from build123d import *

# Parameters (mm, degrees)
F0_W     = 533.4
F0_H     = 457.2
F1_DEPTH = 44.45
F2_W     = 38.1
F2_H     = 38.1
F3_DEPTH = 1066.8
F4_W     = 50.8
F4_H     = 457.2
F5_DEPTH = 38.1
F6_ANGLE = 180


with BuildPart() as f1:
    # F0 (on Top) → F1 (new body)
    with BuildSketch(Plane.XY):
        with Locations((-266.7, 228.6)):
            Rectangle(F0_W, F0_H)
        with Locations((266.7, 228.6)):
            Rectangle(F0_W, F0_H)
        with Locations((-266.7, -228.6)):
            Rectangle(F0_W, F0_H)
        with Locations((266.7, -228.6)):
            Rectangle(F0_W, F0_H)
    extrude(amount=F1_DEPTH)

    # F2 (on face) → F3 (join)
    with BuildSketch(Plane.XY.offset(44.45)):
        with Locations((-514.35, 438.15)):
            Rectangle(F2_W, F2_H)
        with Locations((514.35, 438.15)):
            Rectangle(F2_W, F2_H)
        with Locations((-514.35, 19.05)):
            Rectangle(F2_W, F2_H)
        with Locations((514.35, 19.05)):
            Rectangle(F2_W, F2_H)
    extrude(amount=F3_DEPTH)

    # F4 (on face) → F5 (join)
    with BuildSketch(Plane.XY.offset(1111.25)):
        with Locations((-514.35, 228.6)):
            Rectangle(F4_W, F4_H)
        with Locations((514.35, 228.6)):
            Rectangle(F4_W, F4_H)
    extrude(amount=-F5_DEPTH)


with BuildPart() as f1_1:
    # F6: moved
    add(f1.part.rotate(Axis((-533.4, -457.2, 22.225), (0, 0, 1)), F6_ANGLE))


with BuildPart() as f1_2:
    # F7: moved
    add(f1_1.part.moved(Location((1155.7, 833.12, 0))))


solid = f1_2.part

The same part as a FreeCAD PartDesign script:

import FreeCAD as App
import Part
import Sketcher
from FreeCAD import Vector
Q = App.Units.Quantity


def add_polygon(sketch, points):
    """Adds a closed chain of lines whose ends are joined by coincident constraints."""
    first, n = sketch.GeometryCount, len(points)
    for a, b in zip(points, points[1:] + points[:1]):
        sketch.addGeometry(Part.LineSegment(App.Vector(*a, 0), App.Vector(*b, 0)), False)
    for i in range(n):
        sketch.addConstraint(Sketcher.Constraint("Coincident", first + i, 2, first + (i + 1) % n, 1))

doc = App.newDocument("Part")
params = doc.addObject("Spreadsheet::Sheet", "Params")
for row, (alias, value) in enumerate([
    ("sketch1_width", "42 in"),
    ("sketch1_height", "36 in"),
    ("pad1_length", "1.75 in"),
    ("sketch2_width", "1.5 in"),
    ("pad2_length", "42 in"),
    ("sketch3_width", "2 in"),
    ("sketch3_height", "18 in"),
    ("pad3_length", "1.5 in"),
], start=1):
    params.set(f"A{row}", alias)
    params.set(f"B{row}", "=" + value)
    params.setAlias(f"B{row}", alias)

body = doc.addObject("PartDesign::Body", "Body")

sketch1 = body.newObject("Sketcher::SketchObject", "Sketch")
sketch1.AttachmentSupport = (doc.getObject("XY_Plane"), [""])
sketch1.MapMode = "FlatFace"
add_polygon(sketch1, [(-533, 457), (-533, -457), (533, -457), (533, 457)])
sketch1.addConstraint(Sketcher.Constraint("Vertical", 0))
sketch1.addConstraint(Sketcher.Constraint("Horizontal", 1))
sketch1.addConstraint(Sketcher.Constraint("Vertical", 2))
sketch1.addConstraint(Sketcher.Constraint("Horizontal", 3))
sketch1.addConstraint(Sketcher.Constraint("Symmetric", 0, 2, 2, 2, -1, 1))
sketch1.addConstraint(Sketcher.Constraint("DistanceX", 1, 1, 1, 2, Q("42 in")))
sketch1.addConstraint(Sketcher.Constraint("DistanceY", 0, 2, 0, 1, Q("36 in")))
sketch1.setExpression("Constraints[9]", "Params.sketch1_width")
sketch1.setExpression("Constraints[10]", "Params.sketch1_height")
pad1 = body.newObject("PartDesign::Pad", "Pad")
pad1.Profile = sketch1
pad1.setExpression("Length", "Params.pad1_length")

sketch2 = body.newObject("Sketcher::SketchObject", "Sketch001")
sketch2.AttachmentSupport = (doc.getObject("XY_Plane"), [""])
sketch2.MapMode = "FlatFace"
sketch2.AttachmentOffset = App.Placement(Vector(0, 0, 1.75 * 25.4), App.Rotation())
add_polygon(sketch2, [(-533, 457), (-533, 419), (-495, 419), (-495, 457)])
add_polygon(sketch2, [(495, 457), (495, 419), (533, 419), (533, 457)])
add_polygon(sketch2, [(-533, 38), (-533, 0), (-495, 0), (-495, 38)])
add_polygon(sketch2, [(495, 38), (495, 0), (533, 0), (533, 38)])
sketch2.addConstraint(Sketcher.Constraint("Vertical", 0))
sketch2.addConstraint(Sketcher.Constraint("Horizontal", 1))
sketch2.addConstraint(Sketcher.Constraint("Vertical", 2))
sketch2.addConstraint(Sketcher.Constraint("Horizontal", 3))
sketch2.addConstraint(Sketcher.Constraint("Vertical", 4))
sketch2.addConstraint(Sketcher.Constraint("Horizontal", 5))
sketch2.addConstraint(Sketcher.Constraint("Vertical", 6))
sketch2.addConstraint(Sketcher.Constraint("Horizontal", 7))
sketch2.addConstraint(Sketcher.Constraint("Vertical", 8))
sketch2.addConstraint(Sketcher.Constraint("Horizontal", 9))
sketch2.addConstraint(Sketcher.Constraint("Vertical", 10))
sketch2.addConstraint(Sketcher.Constraint("Horizontal", 11))
sketch2.addConstraint(Sketcher.Constraint("Vertical", 12))
sketch2.addConstraint(Sketcher.Constraint("Horizontal", 13))
sketch2.addConstraint(Sketcher.Constraint("Vertical", 14))
sketch2.addConstraint(Sketcher.Constraint("Horizontal", 15))
sketch2.addConstraint(Sketcher.Constraint("Symmetric", 9, 2, 12, 2, -1, 1))
sketch2.addConstraint(Sketcher.Constraint("Symmetric", 1, 2, 4, 2, -2))
sketch2.addConstraint(Sketcher.Constraint("Symmetric", 3, 2, 6, 2, -2))
sketch2.addConstraint(Sketcher.Constraint("Symmetric", 8, 2, 13, 2, -2))
sketch2.addConstraint(Sketcher.Constraint("Horizontal", 11, 2, 14, 2))
sketch2.addConstraint(Sketcher.Constraint("Vertical", 3, 2, 8, 2))
sketch2.addConstraint(Sketcher.Constraint("Vertical", 2, 2, 9, 2))
sketch2.addConstraint(Sketcher.Constraint("Equal", 15, 0))
sketch2.addConstraint(Sketcher.Constraint("Equal", 6, 8))
sketch2.addConstraint(Sketcher.Constraint("DistanceX", 1, 1, 1, 2, Q("1.5 in")))
sketch2.addConstraint(Sketcher.Constraint("DistanceX", 0, 2, -1, 1, Q("21 in")))
sketch2.addConstraint(Sketcher.Constraint("DistanceY", -1, 1, 2, 2, Q("18 in")))
sketch2.setExpression("Constraints[41]", "Params.sketch2_width")
pad2 = body.newObject("PartDesign::Pad", "Pad001")
pad2.Profile = sketch2
pad2.setExpression("Length", "Params.pad2_length")

sketch3 = body.newObject("Sketcher::SketchObject", "Sketch002")
sketch3.AttachmentSupport = (doc.getObject("XY_Plane"), [""])
sketch3.MapMode = "FlatFace"
sketch3.AttachmentOffset = App.Placement(Vector(0, 0, 43.75 * 25.4), App.Rotation())
add_polygon(sketch3, [(-540, 457), (-540, 0), (-489, 0), (-489, 457)])
add_polygon(sketch3, [(489, 457), (489, 0), (540, 0), (540, 457)])
sketch3.addConstraint(Sketcher.Constraint("Vertical", 0))
sketch3.addConstraint(Sketcher.Constraint("Horizontal", 1))
sketch3.addConstraint(Sketcher.Constraint("Vertical", 2))
sketch3.addConstraint(Sketcher.Constraint("Horizontal", 3))
sketch3.addConstraint(Sketcher.Constraint("Vertical", 4))
sketch3.addConstraint(Sketcher.Constraint("Horizontal", 5))
sketch3.addConstraint(Sketcher.Constraint("Vertical", 6))
sketch3.addConstraint(Sketcher.Constraint("Horizontal", 7))
sketch3.addConstraint(Sketcher.Constraint("Symmetric", 1, 2, 4, 2, -1, 1))
sketch3.addConstraint(Sketcher.Constraint("Symmetric", 0, 2, 5, 2, -2))
sketch3.addConstraint(Sketcher.Constraint("Horizontal", 3, 2, 6, 2))
sketch3.addConstraint(Sketcher.Constraint("DistanceX", 1, 1, 1, 2, Q("2 in")))
sketch3.addConstraint(Sketcher.Constraint("DistanceY", 0, 2, 0, 1, Q("18 in")))
sketch3.addConstraint(Sketcher.Constraint("DistanceX", 1, 2, 4, 2, Q("38.5 in")))
sketch3.setExpression("Constraints[19]", "Params.sketch3_width")
sketch3.setExpression("Constraints[20]", "Params.sketch3_height")
pad3 = body.newObject("PartDesign::Pad", "Pad002")
pad3.Profile = sketch3
pad3.setExpression("Length", "Params.pad3_length")
pad3.Reversed = True
body2 = doc.addObject("PartDesign::Body", "Body001")
doc.recompute()

body.Placement = App.Placement(Vector(-1066.8, -914.4, 0), App.Rotation(Vector(0, 0, 1), 180))
boolean = body2.newObject("PartDesign::Boolean", "Boolean")
boolean.Type = "Fuse"
boolean.addObjects([body])
body3 = doc.addObject("PartDesign::Body", "Body002")
doc.recompute()

body2.Placement = App.Placement(Vector(1155.7, 833.12, 0), App.Rotation(Vector(0, 0, 1), 0))
boolean2 = body3.newObject("PartDesign::Boolean", "Boolean001")
boolean2.Type = "Fuse"
boolean2.addObjects([body2])

doc.recompute()
